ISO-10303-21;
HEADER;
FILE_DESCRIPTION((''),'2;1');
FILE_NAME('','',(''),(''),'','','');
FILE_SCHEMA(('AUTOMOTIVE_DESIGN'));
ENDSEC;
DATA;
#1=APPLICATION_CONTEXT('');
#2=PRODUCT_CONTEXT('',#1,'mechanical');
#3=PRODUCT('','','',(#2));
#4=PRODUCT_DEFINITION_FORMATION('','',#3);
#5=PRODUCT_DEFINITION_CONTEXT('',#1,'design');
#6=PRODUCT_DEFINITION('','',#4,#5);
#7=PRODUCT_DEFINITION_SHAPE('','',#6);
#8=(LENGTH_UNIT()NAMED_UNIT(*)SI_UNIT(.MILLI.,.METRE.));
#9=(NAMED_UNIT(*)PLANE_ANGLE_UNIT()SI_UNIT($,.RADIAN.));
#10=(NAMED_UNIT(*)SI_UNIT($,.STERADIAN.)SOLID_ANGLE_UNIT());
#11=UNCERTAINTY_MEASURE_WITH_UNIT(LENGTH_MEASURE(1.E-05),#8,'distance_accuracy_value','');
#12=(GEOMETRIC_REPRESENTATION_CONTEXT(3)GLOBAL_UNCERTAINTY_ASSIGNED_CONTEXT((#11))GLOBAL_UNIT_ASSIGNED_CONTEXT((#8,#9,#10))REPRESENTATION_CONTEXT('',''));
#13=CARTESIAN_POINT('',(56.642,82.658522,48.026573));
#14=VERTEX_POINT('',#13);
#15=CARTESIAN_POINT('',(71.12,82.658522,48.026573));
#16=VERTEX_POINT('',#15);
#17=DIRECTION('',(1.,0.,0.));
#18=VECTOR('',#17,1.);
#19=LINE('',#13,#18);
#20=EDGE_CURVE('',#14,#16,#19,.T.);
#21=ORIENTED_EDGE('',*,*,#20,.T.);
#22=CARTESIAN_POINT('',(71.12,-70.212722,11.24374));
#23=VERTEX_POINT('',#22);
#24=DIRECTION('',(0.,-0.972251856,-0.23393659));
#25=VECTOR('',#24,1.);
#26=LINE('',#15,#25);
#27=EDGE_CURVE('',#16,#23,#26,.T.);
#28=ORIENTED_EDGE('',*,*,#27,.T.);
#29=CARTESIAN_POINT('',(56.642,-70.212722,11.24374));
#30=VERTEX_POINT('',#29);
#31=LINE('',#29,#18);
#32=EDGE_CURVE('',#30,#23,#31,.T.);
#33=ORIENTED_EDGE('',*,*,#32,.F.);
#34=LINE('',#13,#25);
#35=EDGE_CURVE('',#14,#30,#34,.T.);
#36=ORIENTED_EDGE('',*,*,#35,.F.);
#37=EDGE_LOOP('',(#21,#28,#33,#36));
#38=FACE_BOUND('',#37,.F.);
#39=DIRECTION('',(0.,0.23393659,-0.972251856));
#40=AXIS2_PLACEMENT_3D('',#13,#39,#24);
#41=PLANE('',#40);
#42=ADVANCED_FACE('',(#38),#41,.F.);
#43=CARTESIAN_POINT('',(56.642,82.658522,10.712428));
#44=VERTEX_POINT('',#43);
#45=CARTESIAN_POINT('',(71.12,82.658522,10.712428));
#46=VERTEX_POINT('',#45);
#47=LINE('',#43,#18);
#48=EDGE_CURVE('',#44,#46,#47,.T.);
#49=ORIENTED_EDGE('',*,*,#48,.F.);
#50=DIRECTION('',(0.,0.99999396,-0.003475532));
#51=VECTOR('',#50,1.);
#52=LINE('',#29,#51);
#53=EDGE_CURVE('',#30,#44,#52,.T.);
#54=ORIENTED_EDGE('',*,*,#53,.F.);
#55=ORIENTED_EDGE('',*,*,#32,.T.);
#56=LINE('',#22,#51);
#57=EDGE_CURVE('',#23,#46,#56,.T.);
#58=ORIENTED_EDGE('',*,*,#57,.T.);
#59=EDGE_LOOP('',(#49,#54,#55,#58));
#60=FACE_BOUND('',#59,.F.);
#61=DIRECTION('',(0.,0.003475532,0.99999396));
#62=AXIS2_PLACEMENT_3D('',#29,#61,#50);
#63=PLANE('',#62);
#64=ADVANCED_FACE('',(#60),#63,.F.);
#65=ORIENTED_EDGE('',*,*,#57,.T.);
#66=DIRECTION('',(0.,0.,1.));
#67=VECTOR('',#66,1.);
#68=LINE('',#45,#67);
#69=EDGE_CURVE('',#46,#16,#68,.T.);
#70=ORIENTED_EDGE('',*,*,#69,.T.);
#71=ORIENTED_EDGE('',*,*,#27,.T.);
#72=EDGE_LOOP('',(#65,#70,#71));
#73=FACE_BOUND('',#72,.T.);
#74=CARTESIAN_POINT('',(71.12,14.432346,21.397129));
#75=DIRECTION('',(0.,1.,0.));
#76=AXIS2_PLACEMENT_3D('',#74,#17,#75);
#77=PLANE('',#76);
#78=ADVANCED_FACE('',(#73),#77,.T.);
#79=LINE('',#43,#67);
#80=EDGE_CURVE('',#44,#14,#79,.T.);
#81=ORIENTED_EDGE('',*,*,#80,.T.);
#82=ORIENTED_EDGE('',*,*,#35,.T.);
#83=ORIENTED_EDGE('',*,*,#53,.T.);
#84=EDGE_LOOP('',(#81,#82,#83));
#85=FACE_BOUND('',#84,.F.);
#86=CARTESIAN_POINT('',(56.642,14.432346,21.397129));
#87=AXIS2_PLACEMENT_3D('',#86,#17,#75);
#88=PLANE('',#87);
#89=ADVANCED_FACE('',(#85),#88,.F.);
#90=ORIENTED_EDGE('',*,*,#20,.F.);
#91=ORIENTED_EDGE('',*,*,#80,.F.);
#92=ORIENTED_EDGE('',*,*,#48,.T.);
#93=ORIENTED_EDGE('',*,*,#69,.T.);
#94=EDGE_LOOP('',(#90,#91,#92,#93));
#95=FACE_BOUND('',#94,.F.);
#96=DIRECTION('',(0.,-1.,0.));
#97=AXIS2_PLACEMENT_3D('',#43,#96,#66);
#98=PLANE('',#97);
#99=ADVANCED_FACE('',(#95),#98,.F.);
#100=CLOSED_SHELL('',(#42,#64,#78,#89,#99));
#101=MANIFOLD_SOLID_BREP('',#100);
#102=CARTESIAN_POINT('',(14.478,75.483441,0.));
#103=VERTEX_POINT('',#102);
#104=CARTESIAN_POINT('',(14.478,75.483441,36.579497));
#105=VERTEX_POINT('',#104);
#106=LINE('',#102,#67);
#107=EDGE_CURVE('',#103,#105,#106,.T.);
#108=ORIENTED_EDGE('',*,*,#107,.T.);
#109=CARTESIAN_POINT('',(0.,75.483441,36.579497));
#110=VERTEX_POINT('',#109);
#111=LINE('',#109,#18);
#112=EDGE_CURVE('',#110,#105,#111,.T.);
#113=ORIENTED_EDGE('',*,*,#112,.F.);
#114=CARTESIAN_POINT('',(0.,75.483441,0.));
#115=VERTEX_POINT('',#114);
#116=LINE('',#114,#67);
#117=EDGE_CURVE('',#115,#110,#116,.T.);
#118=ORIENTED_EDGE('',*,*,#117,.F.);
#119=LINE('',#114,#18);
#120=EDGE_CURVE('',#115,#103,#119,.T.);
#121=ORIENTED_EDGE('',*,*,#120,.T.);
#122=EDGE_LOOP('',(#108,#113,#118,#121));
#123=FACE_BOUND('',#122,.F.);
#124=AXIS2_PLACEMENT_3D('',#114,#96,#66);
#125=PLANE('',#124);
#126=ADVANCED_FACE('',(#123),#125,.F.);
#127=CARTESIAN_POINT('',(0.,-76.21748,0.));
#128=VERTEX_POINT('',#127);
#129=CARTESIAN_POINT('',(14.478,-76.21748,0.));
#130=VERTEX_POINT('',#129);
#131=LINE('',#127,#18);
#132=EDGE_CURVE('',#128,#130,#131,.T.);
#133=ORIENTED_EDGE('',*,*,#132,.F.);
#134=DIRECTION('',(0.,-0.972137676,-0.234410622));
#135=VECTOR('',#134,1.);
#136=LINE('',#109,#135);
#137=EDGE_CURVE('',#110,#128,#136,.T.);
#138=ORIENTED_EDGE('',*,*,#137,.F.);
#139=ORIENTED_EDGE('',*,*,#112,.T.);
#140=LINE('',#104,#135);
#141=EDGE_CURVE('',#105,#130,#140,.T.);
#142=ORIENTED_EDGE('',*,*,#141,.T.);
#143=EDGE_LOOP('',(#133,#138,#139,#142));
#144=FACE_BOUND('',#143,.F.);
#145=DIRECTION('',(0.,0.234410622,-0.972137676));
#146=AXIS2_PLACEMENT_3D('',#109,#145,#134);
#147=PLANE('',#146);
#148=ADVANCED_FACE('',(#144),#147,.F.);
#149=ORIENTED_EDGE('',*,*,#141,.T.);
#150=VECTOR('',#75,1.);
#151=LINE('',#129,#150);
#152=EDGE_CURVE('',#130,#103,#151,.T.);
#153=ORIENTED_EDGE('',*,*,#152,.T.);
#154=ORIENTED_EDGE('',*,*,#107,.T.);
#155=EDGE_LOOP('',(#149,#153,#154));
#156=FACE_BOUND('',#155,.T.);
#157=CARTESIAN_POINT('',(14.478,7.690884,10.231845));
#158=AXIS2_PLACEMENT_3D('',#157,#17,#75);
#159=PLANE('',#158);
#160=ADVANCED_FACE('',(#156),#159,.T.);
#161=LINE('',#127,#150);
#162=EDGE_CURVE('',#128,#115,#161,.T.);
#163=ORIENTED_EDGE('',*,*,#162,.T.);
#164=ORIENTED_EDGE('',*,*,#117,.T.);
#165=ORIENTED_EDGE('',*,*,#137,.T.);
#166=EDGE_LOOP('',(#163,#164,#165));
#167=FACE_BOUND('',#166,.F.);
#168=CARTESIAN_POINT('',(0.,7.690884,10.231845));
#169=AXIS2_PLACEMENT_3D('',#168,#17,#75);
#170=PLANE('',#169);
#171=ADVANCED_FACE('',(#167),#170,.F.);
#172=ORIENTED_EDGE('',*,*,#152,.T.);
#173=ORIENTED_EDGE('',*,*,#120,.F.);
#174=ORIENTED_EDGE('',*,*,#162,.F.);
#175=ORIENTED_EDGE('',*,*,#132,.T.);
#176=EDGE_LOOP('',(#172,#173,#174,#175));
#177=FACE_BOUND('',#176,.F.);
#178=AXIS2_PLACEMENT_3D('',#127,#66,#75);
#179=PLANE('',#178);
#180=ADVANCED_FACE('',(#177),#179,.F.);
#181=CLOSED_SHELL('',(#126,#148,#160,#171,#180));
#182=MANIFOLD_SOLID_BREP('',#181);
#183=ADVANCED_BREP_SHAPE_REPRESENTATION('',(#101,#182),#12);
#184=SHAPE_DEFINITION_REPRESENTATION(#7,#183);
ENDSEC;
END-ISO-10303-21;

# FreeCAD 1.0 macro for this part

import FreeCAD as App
import Part
import Sketcher

V = App.Vector
Q = App.Units.Quantity

doc = App.newDocument("Part")
params = doc.addObject("Spreadsheet::Sheet", "Params")
for row, (alias, value) in enumerate([
    ("pad1_length", "0.57 in"),
    ("pad2_length", "0.57 in"),
], start=1):
    params.set(f"A{row}", alias)
    params.set(f"B{row}", "=" + value)
    params.setAlias(f"B{row}", alias)

body = doc.addObject("PartDesign::Body", "Body")

# Sketch on YZ plane
sketch1 = body.newObject("Sketcher::SketchObject", "Sketch")
sketch1.AttachmentSupport = (doc.getObject("YZ_Plane"), [""])
sketch1.MapMode = "FlatFace"
sketch1.AttachmentOffset = App.Placement(V(0, 0, 2.23 * 25.4), App.Rotation())
sketch1.addGeometry(Part.LineSegment(V(82.658522, 48.026573, 0), V(-70.212722, 11.24374, 0)), False)
sketch1.addGeometry(Part.LineSegment(V(-70.212722, 11.24374, 0), V(82.658522, 10.712428, 0)), False)
sketch1.addGeometry(Part.LineSegment(V(82.658522, 10.712428, 0), V(82.658522, 48.026573, 0)), False)
sketch1.addConstraint(Sketcher.Constraint("Coincident", 0, 2, 1, 1))
sketch1.addConstraint(Sketcher.Constraint("Coincident", 1, 2, 2, 1))
sketch1.addConstraint(Sketcher.Constraint("Coincident", 2, 2, 0, 1))
sketch1.addConstraint(Sketcher.Constraint("Vertical", 2))
sketch1.addConstraint(Sketcher.Constraint("Distance", 0, Q("157.234201 mm")))
sketch1.addConstraint(Sketcher.Constraint("DistanceY", 2, 1, 2, 2, Q("37.314145 mm")))
sketch1.addConstraint(Sketcher.Constraint("DistanceX", 0, 2, -1, 1, Q("70.212722 mm")))
sketch1.addConstraint(Sketcher.Constraint("DistanceY", -1, 1, 0, 2, Q("11.24374 mm")))
sketch1.addConstraint(Sketcher.Constraint("DistanceX", -1, 1, 1, 2, Q("82.658522 mm")))
pad1 = body.newObject("PartDesign::Pad", "Pad")
pad1.Profile = sketch1
pad1.setExpression("Length", "Params.pad1_length")
body2 = doc.addObject("PartDesign::Body", "Body001")

# Sketch on YZ plane
sketch2 = body2.newObject("Sketcher::SketchObject", "Sketch001")
sketch2.AttachmentSupport = (doc.getObject("YZ_Plane001"), [""])
sketch2.MapMode = "FlatFace"
sketch2.addGeometry(Part.LineSegment(V(75.483441, 36.579497, 0), V(-76.21748, 0, 0)), False)
sketch2.addGeometry(Part.LineSegment(V(-76.21748, 0, 0), V(75.483441, 0, 0)), False)
sketch2.addGeometry(Part.LineSegment(V(75.483441, 0, 0), V(75.483441, 36.579497, 0)), False)
sketch2.addConstraint(Sketcher.Constraint("Coincident", 0, 2, 1, 1))
sketch2.addConstraint(Sketcher.Constraint("Coincident", 1, 2, 2, 1))
sketch2.addConstraint(Sketcher.Constraint("Coincident", 2, 2, 0, 1))
sketch2.addConstraint(Sketcher.Constraint("Horizontal", 1))
sketch2.addConstraint(Sketcher.Constraint("Vertical", 2))
sketch2.addConstraint(Sketcher.Constraint("PointOnObject", 0, 2, -1))
sketch2.addConstraint(Sketcher.Constraint("DistanceX", 1, 1, 1, 2, Q("151.700921 mm")))
sketch2.addConstraint(Sketcher.Constraint("DistanceY", 2, 1, 2, 2, Q("36.579497 mm")))
sketch2.addConstraint(Sketcher.Constraint("DistanceX", 0, 2, -1, 1, Q("76.21748 mm")))
pad2 = body2.newObject("PartDesign::Pad", "Pad001")
pad2.Profile = sketch2
pad2.setExpression("Length", "Params.pad2_length")

doc.recompute()
